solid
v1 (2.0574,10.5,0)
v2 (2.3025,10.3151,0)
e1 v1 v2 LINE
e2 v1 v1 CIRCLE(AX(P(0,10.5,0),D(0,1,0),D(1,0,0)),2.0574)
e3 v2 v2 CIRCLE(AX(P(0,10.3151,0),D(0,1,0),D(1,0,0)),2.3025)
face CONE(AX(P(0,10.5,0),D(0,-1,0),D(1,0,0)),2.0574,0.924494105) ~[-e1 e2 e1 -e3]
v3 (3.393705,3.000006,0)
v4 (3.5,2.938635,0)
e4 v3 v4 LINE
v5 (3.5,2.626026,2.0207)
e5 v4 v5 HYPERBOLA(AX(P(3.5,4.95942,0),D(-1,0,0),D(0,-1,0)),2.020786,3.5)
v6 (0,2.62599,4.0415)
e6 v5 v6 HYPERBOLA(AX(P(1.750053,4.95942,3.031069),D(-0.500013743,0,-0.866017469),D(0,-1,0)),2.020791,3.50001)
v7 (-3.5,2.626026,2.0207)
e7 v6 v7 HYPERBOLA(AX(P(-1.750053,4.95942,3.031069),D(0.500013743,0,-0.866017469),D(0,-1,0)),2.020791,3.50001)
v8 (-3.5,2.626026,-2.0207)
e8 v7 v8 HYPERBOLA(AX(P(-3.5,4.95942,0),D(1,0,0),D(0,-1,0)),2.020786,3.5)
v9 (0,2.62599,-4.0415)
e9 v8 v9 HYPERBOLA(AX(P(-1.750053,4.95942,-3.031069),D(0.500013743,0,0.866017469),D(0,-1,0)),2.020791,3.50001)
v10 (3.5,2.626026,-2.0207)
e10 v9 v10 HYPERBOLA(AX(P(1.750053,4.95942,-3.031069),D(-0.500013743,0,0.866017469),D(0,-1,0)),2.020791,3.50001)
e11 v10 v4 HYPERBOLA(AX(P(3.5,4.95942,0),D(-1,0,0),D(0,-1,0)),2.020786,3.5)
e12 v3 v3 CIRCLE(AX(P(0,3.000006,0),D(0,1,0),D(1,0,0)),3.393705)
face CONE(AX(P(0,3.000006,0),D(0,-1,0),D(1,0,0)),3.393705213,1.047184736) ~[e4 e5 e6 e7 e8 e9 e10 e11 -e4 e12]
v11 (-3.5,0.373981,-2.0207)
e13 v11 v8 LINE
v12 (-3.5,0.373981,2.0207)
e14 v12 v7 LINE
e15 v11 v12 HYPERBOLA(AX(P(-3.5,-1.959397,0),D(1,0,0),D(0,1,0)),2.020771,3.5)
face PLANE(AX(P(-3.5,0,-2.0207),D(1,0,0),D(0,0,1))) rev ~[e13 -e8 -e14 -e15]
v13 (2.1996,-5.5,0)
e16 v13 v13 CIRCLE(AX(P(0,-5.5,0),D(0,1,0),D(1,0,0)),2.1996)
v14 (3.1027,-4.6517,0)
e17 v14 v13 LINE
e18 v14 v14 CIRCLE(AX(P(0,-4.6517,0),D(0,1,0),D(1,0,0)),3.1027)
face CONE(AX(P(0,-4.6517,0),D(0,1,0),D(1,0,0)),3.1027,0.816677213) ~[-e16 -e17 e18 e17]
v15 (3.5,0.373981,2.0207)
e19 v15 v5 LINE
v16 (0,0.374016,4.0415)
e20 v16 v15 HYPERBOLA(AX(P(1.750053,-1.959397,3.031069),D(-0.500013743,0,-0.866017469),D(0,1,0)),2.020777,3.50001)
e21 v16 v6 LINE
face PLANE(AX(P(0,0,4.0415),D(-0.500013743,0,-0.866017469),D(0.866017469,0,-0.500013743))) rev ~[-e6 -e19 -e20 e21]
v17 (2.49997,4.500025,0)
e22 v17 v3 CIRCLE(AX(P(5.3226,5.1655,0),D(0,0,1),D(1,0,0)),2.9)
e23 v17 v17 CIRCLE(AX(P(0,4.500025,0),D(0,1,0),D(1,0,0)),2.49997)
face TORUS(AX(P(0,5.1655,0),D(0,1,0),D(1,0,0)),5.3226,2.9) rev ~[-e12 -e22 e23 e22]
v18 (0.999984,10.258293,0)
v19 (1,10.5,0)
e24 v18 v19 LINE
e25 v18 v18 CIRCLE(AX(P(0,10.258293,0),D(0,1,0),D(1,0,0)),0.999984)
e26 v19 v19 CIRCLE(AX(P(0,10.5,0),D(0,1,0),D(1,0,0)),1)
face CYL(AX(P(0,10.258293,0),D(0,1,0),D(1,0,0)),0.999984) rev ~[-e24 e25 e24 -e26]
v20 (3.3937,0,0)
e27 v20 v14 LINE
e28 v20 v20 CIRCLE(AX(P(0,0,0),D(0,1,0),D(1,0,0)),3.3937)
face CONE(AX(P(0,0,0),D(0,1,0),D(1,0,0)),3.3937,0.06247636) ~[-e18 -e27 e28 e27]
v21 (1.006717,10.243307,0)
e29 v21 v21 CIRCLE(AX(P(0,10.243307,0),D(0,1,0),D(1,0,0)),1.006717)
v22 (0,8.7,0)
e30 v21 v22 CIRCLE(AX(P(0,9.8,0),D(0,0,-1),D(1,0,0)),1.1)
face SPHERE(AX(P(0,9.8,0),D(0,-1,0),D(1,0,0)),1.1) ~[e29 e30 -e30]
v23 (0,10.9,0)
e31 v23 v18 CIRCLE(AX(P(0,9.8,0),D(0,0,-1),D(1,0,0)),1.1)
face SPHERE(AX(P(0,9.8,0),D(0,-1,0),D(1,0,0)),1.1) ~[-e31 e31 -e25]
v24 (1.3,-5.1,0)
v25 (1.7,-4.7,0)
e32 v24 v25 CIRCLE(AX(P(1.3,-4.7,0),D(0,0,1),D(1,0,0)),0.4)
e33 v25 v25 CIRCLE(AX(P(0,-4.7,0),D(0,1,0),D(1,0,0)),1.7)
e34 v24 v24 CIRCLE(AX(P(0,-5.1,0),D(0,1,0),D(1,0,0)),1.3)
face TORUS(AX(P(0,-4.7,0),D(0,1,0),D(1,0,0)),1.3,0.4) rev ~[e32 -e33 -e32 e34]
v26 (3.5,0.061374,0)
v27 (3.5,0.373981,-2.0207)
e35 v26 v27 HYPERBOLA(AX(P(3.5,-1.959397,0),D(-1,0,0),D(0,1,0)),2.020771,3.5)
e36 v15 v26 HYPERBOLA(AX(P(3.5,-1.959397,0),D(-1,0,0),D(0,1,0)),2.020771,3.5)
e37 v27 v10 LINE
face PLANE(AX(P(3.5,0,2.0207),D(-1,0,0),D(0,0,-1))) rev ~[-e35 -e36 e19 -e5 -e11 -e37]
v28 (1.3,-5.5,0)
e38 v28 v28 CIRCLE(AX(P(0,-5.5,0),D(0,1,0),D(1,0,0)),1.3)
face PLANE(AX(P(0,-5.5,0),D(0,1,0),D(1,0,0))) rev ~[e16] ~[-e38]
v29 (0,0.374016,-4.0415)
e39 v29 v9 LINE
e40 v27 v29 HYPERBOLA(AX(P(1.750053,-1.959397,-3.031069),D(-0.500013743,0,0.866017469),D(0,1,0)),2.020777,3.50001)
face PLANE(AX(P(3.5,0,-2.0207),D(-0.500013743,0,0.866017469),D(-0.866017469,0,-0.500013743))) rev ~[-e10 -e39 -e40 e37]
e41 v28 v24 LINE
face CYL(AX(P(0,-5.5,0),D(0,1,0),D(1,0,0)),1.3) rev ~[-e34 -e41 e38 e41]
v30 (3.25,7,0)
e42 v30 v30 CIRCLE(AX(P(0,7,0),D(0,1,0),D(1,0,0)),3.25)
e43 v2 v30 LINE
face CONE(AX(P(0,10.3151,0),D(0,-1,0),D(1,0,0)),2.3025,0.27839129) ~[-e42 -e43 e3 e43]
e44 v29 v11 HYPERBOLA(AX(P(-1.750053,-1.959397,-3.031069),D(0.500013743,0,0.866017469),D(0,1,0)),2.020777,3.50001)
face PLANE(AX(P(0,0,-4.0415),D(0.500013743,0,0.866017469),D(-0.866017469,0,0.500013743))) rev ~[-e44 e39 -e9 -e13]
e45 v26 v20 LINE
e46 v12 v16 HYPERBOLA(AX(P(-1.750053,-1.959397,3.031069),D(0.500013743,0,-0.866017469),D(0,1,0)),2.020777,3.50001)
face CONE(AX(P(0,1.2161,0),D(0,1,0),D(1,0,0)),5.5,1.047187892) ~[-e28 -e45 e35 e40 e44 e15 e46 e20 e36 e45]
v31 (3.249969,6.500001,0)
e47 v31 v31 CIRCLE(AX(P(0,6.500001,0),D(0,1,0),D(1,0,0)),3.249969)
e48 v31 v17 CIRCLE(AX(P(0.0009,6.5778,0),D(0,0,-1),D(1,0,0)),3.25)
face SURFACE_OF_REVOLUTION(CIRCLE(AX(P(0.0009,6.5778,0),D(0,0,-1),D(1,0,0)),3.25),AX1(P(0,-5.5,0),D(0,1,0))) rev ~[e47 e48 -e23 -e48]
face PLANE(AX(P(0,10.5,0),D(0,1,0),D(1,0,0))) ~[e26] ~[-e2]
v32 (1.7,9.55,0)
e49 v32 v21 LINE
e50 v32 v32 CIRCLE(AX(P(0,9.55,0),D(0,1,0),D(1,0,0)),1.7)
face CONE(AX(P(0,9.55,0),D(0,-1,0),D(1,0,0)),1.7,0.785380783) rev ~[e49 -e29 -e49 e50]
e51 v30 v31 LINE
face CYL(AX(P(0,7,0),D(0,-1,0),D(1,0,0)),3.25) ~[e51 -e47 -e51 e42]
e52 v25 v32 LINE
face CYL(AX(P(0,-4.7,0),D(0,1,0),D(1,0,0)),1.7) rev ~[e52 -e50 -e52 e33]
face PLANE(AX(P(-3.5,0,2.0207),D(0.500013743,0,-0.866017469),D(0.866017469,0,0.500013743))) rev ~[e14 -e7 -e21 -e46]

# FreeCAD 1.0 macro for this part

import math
import FreeCAD as App
import Part
import Sketcher
Q = App.Units.Quantity

doc = App.newDocument("Part")
params = doc.addObject("Spreadsheet::Sheet", "Params")
for row, (alias, value) in enumerate([
    ("sketch1_radius", "1.1 mm"),
    ("sketch1_radius2", "0.4 mm"),
    ("sketch1_radius3", "2.9 mm"),
    ("sketch1_radius4", "3.25 mm"),
    ("sketch1_height", "0.4 mm"),
    ("revolution_angle", "360 deg"),
    ("sketch2_width", "12 mm"),
    ("pocket1_length", "3 mm"),
], start=1):
    params.set(f"A{row}", alias)
    params.set(f"B{row}", "=" + value)
    params.setAlias(f"B{row}", alias)

body = doc.addObject("PartDesign::Body", "Body")

# Sketch on XY plane
sketch1 = body.newObject("Sketcher::SketchObject", "Sketch")
sketch1.AttachmentSupport = (doc.getObject("XY_Plane"), [""])
sketch1.MapMode = "FlatFace"
sketch1.addGeometry(Part.ArcOfCircle(Part.Circle(App.Vector(0, 9.8, 0), App.Vector(0, 0, 1), 1.1), math.radians(25), math.radians(90)), False)
sketch1.addGeometry(Part.LineSegment(App.Vector(0, 10.9, 0), App.Vector(0, 8.7, 0)), False)
sketch1.addGeometry(Part.ArcOfCircle(Part.Circle(App.Vector(0, 9.8, 0), App.Vector(0, 0, 1), 1.1), math.radians(-90), math.radians(24)), False)
sketch1.addGeometry(Part.LineSegment(App.Vector(1.01, 10.24, 0), App.Vector(1.7, 9.55, 0)), False)
sketch1.addGeometry(Part.LineSegment(App.Vector(1.7, 9.55, 0), App.Vector(1.7, -4.7, 0)), False)
sketch1.addGeometry(Part.ArcOfCircle(Part.Circle(App.Vector(1.3, -4.7, 0), App.Vector(0, 0, 1), 0.4), math.radians(-90), math.radians(0)), False)
sketch1.addGeometry(Part.LineSegment(App.Vector(1.3, -5.1, 0), App.Vector(1.3, -5.5, 0)), False)
sketch1.addGeometry(Part.LineSegment(App.Vector(1.3, -5.5, 0), App.Vector(2.2, -5.5, 0)), False)
sketch1.addGeometry(Part.LineSegment(App.Vector(2.2, -5.5, 0), App.Vector(3.1, -4.65, 0)), False)
sketch1.addGeometry(Part.LineSegment(App.Vector(3.1, -4.65, 0), App.Vector(3.39, 0, 0)), False)
sketch1.addGeometry(Part.LineSegment(App.Vector(3.39, 0, 0), App.Vector(5.5, 1.22, 0)), False)
sketch1.addGeometry(Part.LineSegment(App.Vector(5.5, 1.22, 0), App.Vector(5.5, 1.78, 0)), False)
sketch1.addGeometry(Part.LineSegment(App.Vector(5.5, 1.78, 0), App.Vector(3.39, 3, 0)), False)
sketch1.addGeometry(Part.ArcOfCircle(Part.Circle(App.Vector(5.32, 5.17, 0), App.Vector(0, 0, 1), 2.9), math.radians(-167), math.radians(-132)), False)
sketch1.addGeometry(Part.ArcOfCircle(Part.Circle(App.Vector(0, 6.58, 0), App.Vector(0, 0, 1), 3.25), math.radians(-40), math.radians(-1)), False)
sketch1.addGeometry(Part.LineSegment(App.Vector(3.25, 6.5, 0), App.Vector(3.25, 7, 0)), False)
sketch1.addGeometry(Part.LineSegment(App.Vector(3.25, 7, 0), App.Vector(2.3, 10.32, 0)), False)
sketch1.addGeometry(Part.LineSegment(App.Vector(2.3, 10.32, 0), App.Vector(2.06, 10.5, 0)), False)
sketch1.addGeometry(Part.LineSegment(App.Vector(2.06, 10.5, 0), App.Vector(1, 10.5, 0)), False)
sketch1.addGeometry(Part.LineSegment(App.Vector(1, 10.5, 0), App.Vector(1, 10.26, 0)), False)
sketch1.addConstraint(Sketcher.Constraint("Coincident", 0, 2, 1, 1))
sketch1.addConstraint(Sketcher.Constraint("Coincident", 1, 2, 2, 1))
sketch1.addConstraint(Sketcher.Constraint("Coincident", 2, 2, 3, 1))
sketch1.addConstraint(Sketcher.Constraint("Coincident", 3, 2, 4, 1))
sketch1.addConstraint(Sketcher.Constraint("Tangent", 4, 2, 5, 2))
sketch1.addConstraint(Sketcher.Constraint("Coincident", 5, 1, 6, 1))
sketch1.addConstraint(Sketcher.Constraint("Coincident", 6, 2, 7, 1))
sketch1.addConstraint(Sketcher.Constraint("Coincident", 7, 2, 8, 1))
sketch1.addConstraint(Sketcher.Constraint("Coincident", 8, 2, 9, 1))
sketch1.addConstraint(Sketcher.Constraint("Coincident", 9, 2, 10, 1))
sketch1.addConstraint(Sketcher.Constraint("Coincident", 10, 2, 11, 1))
sketch1.addConstraint(Sketcher.Constraint("Coincident", 11, 2, 12, 1))
sketch1.addConstraint(Sketcher.Constraint("Coincident", 12, 2, 13, 2))
sketch1.addConstraint(Sketcher.Constraint("Coincident", 13, 1, 14, 1))
sketch1.addConstraint(Sketcher.Constraint("Coincident", 14, 2, 15, 1))
sketch1.addConstraint(Sketcher.Constraint("Coincident", 15, 2, 16, 1))
sketch1.addConstraint(Sketcher.Constraint("Coincident", 16, 2, 17, 1))
sketch1.addConstraint(Sketcher.Constraint("Coincident", 17, 2, 18, 1))
sketch1.addConstraint(Sketcher.Constraint("Coincident", 18, 2, 19, 1))
sketch1.addConstraint(Sketcher.Constraint("Coincident", 19, 2, 0, 1))
sketch1.addConstraint(Sketcher.Constraint("Vertical", 1))
sketch1.addConstraint(Sketcher.Constraint("Vertical", 4))
sketch1.addConstraint(Sketcher.Constraint("Vertical", 6))
sketch1.addConstraint(Sketcher.Constraint("Horizontal", 7))
sketch1.addConstraint(Sketcher.Constraint("Vertical", 11))
sketch1.addConstraint(Sketcher.Constraint("Vertical", 15))
sketch1.addConstraint(Sketcher.Constraint("Horizontal", 18))
sketch1.addConstraint(Sketcher.Constraint("Vertical", 19))
sketch1.addConstraint(Sketcher.Constraint("Coincident", 2, 3, 0, 3))
sketch1.addConstraint(Sketcher.Constraint("Equal", 0, 2))
sketch1.addConstraint(Sketcher.Constraint("PointOnObject", 0, 3, -2))
sketch1.addConstraint(Sketcher.Constraint("PointOnObject", 0, 2, -2))
sketch1.addConstraint(Sketcher.Constraint("PointOnObject", 9, 2, -1))
sketch1.addConstraint(Sketcher.Constraint("Vertical", 9, 2, 12, 2))
sketch1.addConstraint(Sketcher.Constraint("Equal", 10, 12))
sketch1.addConstraint(Sketcher.Constraint("Radius", 0, Q("1.1 mm")))
sketch1.addConstraint(Sketcher.Constraint("Radius", 5, Q("0.4 mm")))
sketch1.addConstraint(Sketcher.Constraint("Radius", 13, Q("2.9 mm")))
sketch1.addConstraint(Sketcher.Constraint("Angle", 3, Q("-45 deg")))
sketch1.addConstraint(Sketcher.Constraint("Angle", 10, Q("30.0006 deg")))
sketch1.addConstraint(Sketcher.Constraint("Radius", 14, Q("3.25 mm")))
sketch1.addConstraint(Sketcher.Constraint("DistanceY", 6, 2, 6, 1, Q("0.4 mm")))
sketch1.addConstraint(Sketcher.Constraint("DistanceY", 15, 1, 15, 2, Q("0.5 mm")))
sketch1.addConstraint(Sketcher.Constraint("DistanceY", -1, 1, 12, 2, Q("3 mm")))
sketch1.addConstraint(Sketcher.Constraint("DistanceY", -1, 1, 15, 2, Q("7 mm")))
sketch1.addConstraint(Sketcher.Constraint("DistanceX", -1, 1, 18, 2, Q("1 mm")))
sketch1.addConstraint(Sketcher.Constraint("DistanceX", 13, 1, 11, 2, Q("3 mm")))
sketch1.addConstraint(Sketcher.Constraint("DistanceY", 13, 1, 14, 2, Q("2 mm")))
sketch1.addConstraint(Sketcher.Constraint("DistanceY", 4, 2, 4, 1, Q("14.25 mm")))
sketch1.addConstraint(Sketcher.Constraint("DistanceY", -1, 1, 0, 3, Q("9.8 mm")))
sketch1.addConstraint(Sketcher.Constraint("DistanceX", -1, 1, 5, 3, Q("1.3 mm")))
sketch1.addConstraint(Sketcher.Constraint("DistanceY", 5, 3, -1, 1, Q("4.7 mm")))
sketch1.addConstraint(Sketcher.Constraint("DistanceX", -1, 1, 5, 1, Q("1.3 mm")))
sketch1.addConstraint(Sketcher.Constraint("DistanceX", -1, 1, 10, 2, Q("5.5 mm")))
sketch1.addConstraint(Sketcher.Constraint("DistanceY", -1, 1, 17, 2, Q("10.5 mm")))
sketch1.addConstraint(Sketcher.Constraint("Angle", 9, Q("86.4204 deg")))
sketch1.addConstraint(Sketcher.Constraint("Angle", 16, Q("105.9506 deg")))
sketch1.addConstraint(Sketcher.Constraint("Angle", 17, Q("142.9696 deg")))
sketch1.addConstraint(Sketcher.Constraint("DistanceX", -1, 1, 14, 2, Q("3.25 mm")))
sketch1.addConstraint(Sketcher.Constraint("Distance", 8, Q("1.239 mm")))
sketch1.addConstraint(Sketcher.Constraint("Distance", 17, Q("0.307 mm")))
sketch1.addConstraint(Sketcher.Constraint("DistanceX", 7, 1, 7, 2, Q("0.8996 mm")))
sketch1.addConstraint(Sketcher.Constraint("DistanceY", 11, 1, 11, 2, Q("0.5678 mm")))
sketch1.setExpression("Constraints[35]", "Params.sketch1_radius")
sketch1.setExpression("Constraints[36]", "Params.sketch1_radius2")
sketch1.setExpression("Constraints[37]", "Params.sketch1_radius3")
sketch1.setExpression("Constraints[40]", "Params.sketch1_radius4")
sketch1.setExpression("Constraints[41]", "Params.sketch1_height")
revolution = body.newObject("PartDesign::Revolution", "Revolution")
revolution.Profile = sketch1
revolution.ReferenceAxis = (sketch1, ["V_Axis"])
revolution.setExpression("Angle", "Params.revolution_angle")

# Sketch on XZ plane
sketch2 = body.newObject("Sketcher::SketchObject", "Sketch001")
sketch2.AttachmentSupport = (doc.getObject("XZ_Plane"), [""])
sketch2.MapMode = "FlatFace"
sketch2.addGeometry(Part.LineSegment(App.Vector(-6, 6, 0), App.Vector(-6, -6, 0)), False)
sketch2.addGeometry(Part.LineSegment(App.Vector(-6, -6, 0), App.Vector(6, -6, 0)), False)
sketch2.addGeometry(Part.LineSegment(App.Vector(6, -6, 0), App.Vector(6, 6, 0)), False)
sketch2.addGeometry(Part.LineSegment(App.Vector(6, 6, 0), App.Vector(-6, 6, 0)), False)
sketch2.addGeometry(Part.LineSegment(App.Vector(-3.5, -2, 0), App.Vector(-3.5, 2, 0)), False)
sketch2.addGeometry(Part.LineSegment(App.Vector(-3.5, 2, 0), App.Vector(0, 4, 0)), False)
sketch2.addGeometry(Part.LineSegment(App.Vector(0, 4, 0), App.Vector(3.5, 2, 0)), False)
sketch2.addGeometry(Part.LineSegment(App.Vector(3.5, 2, 0), App.Vector(3.5, -2, 0)), False)
sketch2.addGeometry(Part.LineSegment(App.Vector(3.5, -2, 0), App.Vector(0, -4, 0)), False)
sketch2.addGeometry(Part.LineSegment(App.Vector(0, -4, 0), App.Vector(-3.5, -2, 0)), False)
sketch2.addConstraint(Sketcher.Constraint("Coincident", 0, 2, 1, 1))
sketch2.addConstraint(Sketcher.Constraint("Coincident", 1, 2, 2, 1))
sketch2.addConstraint(Sketcher.Constraint("Coincident", 2, 2, 3, 1))
sketch2.addConstraint(Sketcher.Constraint("Coincident", 3, 2, 0, 1))
sketch2.addConstraint(Sketcher.Constraint("Coincident", 4, 2, 5, 1))
sketch2.addConstraint(Sketcher.Constraint("Coincident", 5, 2, 6, 1))
sketch2.addConstraint(Sketcher.Constraint("Coincident", 6, 2, 7, 1))
sketch2.addConstraint(Sketcher.Constraint("Coincident", 7, 2, 8, 1))
sketch2.addConstraint(Sketcher.Constraint("Coincident", 8, 2, 9, 1))
sketch2.addConstraint(Sketcher.Constraint("Coincident", 9, 2, 4, 1))
sketch2.addConstraint(Sketcher.Constraint("Vertical", 0))
sketch2.addConstraint(Sketcher.Constraint("Horizontal", 1))
sketch2.addConstraint(Sketcher.Constraint("Vertical", 2))
sketch2.addConstraint(Sketcher.Constraint("Horizontal", 3))
sketch2.addConstraint(Sketcher.Constraint("Vertical", 4))
sketch2.addConstraint(Sketcher.Constraint("Vertical", 7))
sketch2.addConstraint(Sketcher.Constraint("Symmetric", 0, 2, 2, 2, -1, 1))
sketch2.addConstraint(Sketcher.Constraint("Symmetric", 4, 2, 7, 2, -1, 1))
sketch2.addConstraint(Sketcher.Constraint("Symmetric", 5, 2, 8, 2, -1, 1))
sketch2.addConstraint(Sketcher.Constraint("PointOnObject", 5, 2, -2))
sketch2.addConstraint(Sketcher.Constraint("Parallel", 6, 9))
sketch2.addConstraint(Sketcher.Constraint("Horizontal", 4, 2, 6, 2))
sketch2.addConstraint(Sketcher.Constraint("Equal", 3, 0))
sketch2.addConstraint(Sketcher.Constraint("DistanceX", 1, 1, 1, 2, Q("12 mm")))
sketch2.addConstraint(Sketcher.Constraint("Angle", 5, Q("30.001 deg")))
sketch2.addConstraint(Sketcher.Constraint("DistanceX", 4, 2, 6, 2, Q("7 mm")))
sketch2.addConstraint(Sketcher.Constraint("DistanceY", 4, 1, 4, 2, Q("4.0414 mm")))
sketch2.setExpression("Constraints[23]", "Params.sketch2_width")
pocket1 = body.newObject("PartDesign::Pocket", "Pocket")
pocket1.Profile = sketch2
pocket1.setExpression("Length", "Params.pocket1_length")

doc.recompute()
